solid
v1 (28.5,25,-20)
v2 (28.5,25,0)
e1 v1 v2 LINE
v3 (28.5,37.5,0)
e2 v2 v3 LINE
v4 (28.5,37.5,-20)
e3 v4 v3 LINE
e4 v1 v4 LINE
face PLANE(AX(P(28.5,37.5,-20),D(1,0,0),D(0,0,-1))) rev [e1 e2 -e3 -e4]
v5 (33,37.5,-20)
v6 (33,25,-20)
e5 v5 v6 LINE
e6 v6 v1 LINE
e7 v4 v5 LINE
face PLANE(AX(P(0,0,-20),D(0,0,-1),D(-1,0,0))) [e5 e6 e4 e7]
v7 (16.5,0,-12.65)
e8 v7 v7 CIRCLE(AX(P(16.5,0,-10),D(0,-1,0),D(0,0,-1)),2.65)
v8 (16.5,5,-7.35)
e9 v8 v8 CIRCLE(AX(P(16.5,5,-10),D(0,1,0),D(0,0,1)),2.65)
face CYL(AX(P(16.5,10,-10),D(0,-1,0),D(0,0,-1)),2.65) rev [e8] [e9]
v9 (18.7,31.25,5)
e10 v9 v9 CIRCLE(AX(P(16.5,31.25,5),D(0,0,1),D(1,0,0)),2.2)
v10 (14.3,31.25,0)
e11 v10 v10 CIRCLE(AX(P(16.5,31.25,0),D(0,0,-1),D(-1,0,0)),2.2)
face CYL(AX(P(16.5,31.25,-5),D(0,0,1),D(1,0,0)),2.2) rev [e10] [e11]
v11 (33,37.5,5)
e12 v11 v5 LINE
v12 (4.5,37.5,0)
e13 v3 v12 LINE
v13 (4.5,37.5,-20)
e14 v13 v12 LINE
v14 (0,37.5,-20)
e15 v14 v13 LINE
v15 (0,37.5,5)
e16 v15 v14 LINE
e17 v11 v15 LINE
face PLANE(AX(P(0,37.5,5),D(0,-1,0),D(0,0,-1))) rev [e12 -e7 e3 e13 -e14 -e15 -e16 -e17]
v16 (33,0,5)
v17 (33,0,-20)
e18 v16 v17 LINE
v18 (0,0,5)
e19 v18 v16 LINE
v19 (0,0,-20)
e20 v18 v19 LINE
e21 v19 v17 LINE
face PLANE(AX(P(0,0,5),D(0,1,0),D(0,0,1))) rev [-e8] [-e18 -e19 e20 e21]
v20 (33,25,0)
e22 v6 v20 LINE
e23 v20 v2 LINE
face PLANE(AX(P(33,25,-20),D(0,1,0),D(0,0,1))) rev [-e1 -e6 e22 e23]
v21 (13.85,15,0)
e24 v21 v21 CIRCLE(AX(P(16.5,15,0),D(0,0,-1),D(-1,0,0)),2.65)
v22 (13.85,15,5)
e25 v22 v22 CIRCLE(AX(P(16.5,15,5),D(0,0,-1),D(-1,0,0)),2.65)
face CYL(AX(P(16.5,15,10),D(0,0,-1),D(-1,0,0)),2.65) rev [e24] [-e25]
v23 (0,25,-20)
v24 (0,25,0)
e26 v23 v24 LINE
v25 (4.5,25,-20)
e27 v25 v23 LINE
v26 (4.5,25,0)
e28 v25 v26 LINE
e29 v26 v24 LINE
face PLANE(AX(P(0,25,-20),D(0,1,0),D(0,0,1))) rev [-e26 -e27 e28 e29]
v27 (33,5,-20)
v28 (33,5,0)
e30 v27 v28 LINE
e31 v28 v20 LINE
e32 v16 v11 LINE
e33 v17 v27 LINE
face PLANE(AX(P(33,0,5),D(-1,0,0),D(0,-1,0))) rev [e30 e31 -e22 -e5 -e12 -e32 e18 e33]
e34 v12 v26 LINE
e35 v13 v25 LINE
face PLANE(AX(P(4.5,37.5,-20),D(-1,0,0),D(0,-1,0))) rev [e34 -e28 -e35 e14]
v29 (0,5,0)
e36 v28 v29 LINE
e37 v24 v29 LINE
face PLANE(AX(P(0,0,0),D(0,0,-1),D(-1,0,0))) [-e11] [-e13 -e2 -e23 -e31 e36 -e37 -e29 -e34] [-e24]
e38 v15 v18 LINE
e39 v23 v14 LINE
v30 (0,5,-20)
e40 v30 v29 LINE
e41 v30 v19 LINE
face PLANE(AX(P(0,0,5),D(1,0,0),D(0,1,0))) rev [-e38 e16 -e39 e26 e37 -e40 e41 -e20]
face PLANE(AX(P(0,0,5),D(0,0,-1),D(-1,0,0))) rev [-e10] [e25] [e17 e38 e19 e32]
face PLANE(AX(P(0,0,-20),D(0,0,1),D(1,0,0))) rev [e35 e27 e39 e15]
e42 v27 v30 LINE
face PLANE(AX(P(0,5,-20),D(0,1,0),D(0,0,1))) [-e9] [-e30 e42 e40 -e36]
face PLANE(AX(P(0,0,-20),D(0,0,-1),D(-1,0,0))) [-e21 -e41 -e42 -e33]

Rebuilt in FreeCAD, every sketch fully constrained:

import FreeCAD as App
import Part
import Sketcher
Q = App.Units.Quantity

doc = App.newDocument("Part")
body = doc.addObject("PartDesign::Body", "Body")

# Sketch on XY plane
sketch1 = doc.addObject("Sketcher::SketchObject", "Sketch")
body.addObject(sketch1)
sketch1.AttachmentSupport = (doc.XY_Plane, [""])
sketch1.MapMode = "FlatFace"
sketch1.addGeometry([
    Part.LineSegment(App.Vector(0, 38, 0), App.Vector(0, 0, 0)),
    Part.LineSegment(App.Vector(0, 0, 0), App.Vector(33, 0, 0)),
    Part.LineSegment(App.Vector(33, 0, 0), App.Vector(33, 38, 0)),
    Part.LineSegment(App.Vector(33, 38, 0), App.Vector(0, 38, 0)),
], False)
sketch1.addConstraint([
    Sketcher.Constraint("Coincident", 0, 2, 1, 1),
    Sketcher.Constraint("Coincident", 1, 2, 2, 1),
    Sketcher.Constraint("Coincident", 2, 2, 3, 1),
    Sketcher.Constraint("Coincident", 3, 2, 0, 1),
    Sketcher.Constraint("Vertical", 0),
    Sketcher.Constraint("Horizontal", 1),
    Sketcher.Constraint("Vertical", 2),
    Sketcher.Constraint("Horizontal", 3),
    Sketcher.Constraint("Coincident", 0, 2, -1, 1),
    Sketcher.Constraint("DistanceX", 1, 1, 1, 2, Q("33 mm")),
    Sketcher.Constraint("DistanceY", 0, 2, 0, 1, Q("37.5 mm")),
])
pad1 = doc.addObject("PartDesign::Pad", "Pad")
body.addObject(pad1)
pad1.Profile = sketch1
pad1.Length = 5

# Sketch on XY plane
sketch2 = doc.addObject("Sketcher::SketchObject", "Sketch001")
body.addObject(sketch2)
sketch2.AttachmentSupport = (doc.XY_Plane, [""])
sketch2.MapMode = "FlatFace"
sketch2.addGeometry([
    Part.LineSegment(App.Vector(0, 5, 0), App.Vector(0, 0, 0)),
    Part.LineSegment(App.Vector(0, 0, 0), App.Vector(33, 0, 0)),
    Part.LineSegment(App.Vector(33, 0, 0), App.Vector(33, 5, 0)),
    Part.LineSegment(App.Vector(33, 5, 0), App.Vector(0, 5, 0)),
], False)
sketch2.addConstraint([
    Sketcher.Constraint("Coincident", 0, 2, 1, 1),
    Sketcher.Constraint("Coincident", 1, 2, 2, 1),
    Sketcher.Constraint("Coincident", 2, 2, 3, 1),
    Sketcher.Constraint("Coincident", 3, 2, 0, 1),
    Sketcher.Constraint("Vertical", 0),
    Sketcher.Constraint("Horizontal", 1),
    Sketcher.Constraint("Vertical", 2),
    Sketcher.Constraint("Horizontal", 3),
    Sketcher.Constraint("Coincident", 0, 2, -1, 1),
    Sketcher.Constraint("DistanceX", 1, 1, 1, 2, Q("33 mm")),
    Sketcher.Constraint("DistanceY", 0, 2, 0, 1, Q("5 mm")),
])
pad2 = doc.addObject("PartDesign::Pad", "Pad001")
body.addObject(pad2)
pad2.Profile = sketch2
pad2.Length = 20
pad2.Reversed = True

# Sketch on XZ plane
sketch3 = doc.addObject("Sketcher::SketchObject", "Sketch002")
body.addObject(sketch3)
sketch3.AttachmentSupport = (doc.XZ_Plane, [""])
sketch3.MapMode = "FlatFace"
sketch3.addGeometry(Part.Circle(App.Vector(16.5, -10, 0), App.Vector(0, 0, 1), 2.6), False)
sketch3.addConstraint([
    Sketcher.Constraint("Diameter", 0, Q("5.3 mm")),
    Sketcher.Constraint("DistanceY", 0, 3, -1, 1, Q("10 mm")),
    Sketcher.Constraint("DistanceX", -1, 1, 0, 3, Q("16.5 mm")),
])
pocket1 = doc.addObject("PartDesign::Pocket", "Pocket")
body.addObject(pocket1)
pocket1.Profile = sketch3
pocket1.Length = 10

# Sketch on XY plane
sketch4 = doc.addObject("Sketcher::SketchObject", "Sketch003")
body.addObject(sketch4)
sketch4.AttachmentSupport = (doc.XY_Plane, [""])
sketch4.MapMode = "FlatFace"
sketch4.addGeometry(Part.Circle(App.Vector(16.5, 15, 0), App.Vector(0, 0, 1), 2.6), False)
sketch4.addConstraint([
    Sketcher.Constraint("Diameter", 0, Q("5.3 mm")),
    Sketcher.Constraint("DistanceY", -1, 1, 0, 3, Q("15 mm")),
    Sketcher.Constraint("DistanceX", -1, 1, 0, 3, Q("16.5 mm")),
])
pocket2 = doc.addObject("PartDesign::Pocket", "Pocket001")
body.addObject(pocket2)
pocket2.Profile = sketch4
pocket2.Length = 10
pocket2.Reversed = True

# Sketch on XY plane
sketch5 = doc.addObject("Sketcher::SketchObject", "Sketch004")
body.addObject(sketch5)
sketch5.AttachmentSupport = (doc.XY_Plane, [""])
sketch5.MapMode = "FlatFace"
sketch5.addGeometry([
    Part.LineSegment(App.Vector(33, 37.5, 0), App.Vector(33, 25, 0)),  # 0
    Part.LineSegment(App.Vector(33, 25, 0), App.Vector(28.5, 25, 0)),  # 1
    Part.LineSegment(App.Vector(28.5, 25, 0), App.Vector(28.5, 37.5, 0)),  # 2
    Part.LineSegment(App.Vector(28.5, 37.5, 0), App.Vector(33, 37.5, 0)),  # 3
    Part.LineSegment(App.Vector(4.5, 37.5, 0), App.Vector(4.5, 25, 0)),  # 4
    Part.LineSegment(App.Vector(4.5, 25, 0), App.Vector(0, 25, 0)),  # 5
    Part.LineSegment(App.Vector(0, 25, 0), App.Vector(0, 37.5, 0)),  # 6
    Part.LineSegment(App.Vector(0, 37.5, 0), App.Vector(4.5, 37.5, 0)),  # 7
], False)
sketch5.addConstraint([
    Sketcher.Constraint("Coincident", 0, 2, 1, 1),
    Sketcher.Constraint("Coincident", 1, 2, 2, 1),
    Sketcher.Constraint("Coincident", 2, 2, 3, 1),
    Sketcher.Constraint("Coincident", 3, 2, 0, 1),
    Sketcher.Constraint("Coincident", 4, 2, 5, 1),
    Sketcher.Constraint("Coincident", 5, 2, 6, 1),
    Sketcher.Constraint("Coincident", 6, 2, 7, 1),
    Sketcher.Constraint("Coincident", 7, 2, 4, 1),
    Sketcher.Constraint("Vertical", 0),
    Sketcher.Constraint("Horizontal", 1),
    Sketcher.Constraint("Vertical", 2),
    Sketcher.Constraint("Horizontal", 3),
    Sketcher.Constraint("Vertical", 4),
    Sketcher.Constraint("Horizontal", 5),
    Sketcher.Constraint("Vertical", 6),
    Sketcher.Constraint("Horizontal", 7),
    Sketcher.Constraint("PointOnObject", 5, 2, -2),
    Sketcher.Constraint("Horizontal", 1, 2, 4, 2),
    Sketcher.Constraint("Horizontal", 3, 2, 6, 2),
    Sketcher.Constraint("Equal", 3, 5),
    Sketcher.Constraint("DistanceX", 1, 2, 1, 1, Q("4.5 mm")),
    Sketcher.Constraint("DistanceY", 0, 2, 0, 1, Q("12.5 mm")),
    Sketcher.Constraint("DistanceX", -1, 1, 0, 2, Q("33 mm")),
    Sketcher.Constraint("DistanceY", -1, 1, 0, 2, Q("25 mm")),
])
pad3 = doc.addObject("PartDesign::Pad", "Pad002")
body.addObject(pad3)
pad3.Profile = sketch5
pad3.Length = 20
pad3.Reversed = True

# Sketch on XY plane
sketch6 = doc.addObject("Sketcher::SketchObject", "Sketch005")
body.addObject(sketch6)
sketch6.AttachmentSupport = (doc.XY_Plane, [""])
sketch6.MapMode = "FlatFace"
sketch6.AttachmentOffset = App.Placement(App.Vector(0, 0, 5), App.Rotation())
sketch6.addGeometry(Part.Circle(App.Vector(16.5, 31.2, 0), App.Vector(0, 0, 1), 2.2), False)
sketch6.addConstraint([
    Sketcher.Constraint("Diameter", 0, Q("4.4 mm")),
    Sketcher.Constraint("DistanceX", -1, 1, 0, 3, Q("16.5 mm")),
    Sketcher.Constraint("DistanceY", -1, 1, 0, 3, Q("31.25 mm")),
])
pocket3 = doc.addObject("PartDesign::Pocket", "Pocket002")
body.addObject(pocket3)
pocket3.Profile = sketch6
pocket3.Length = 10

doc.recompute()
